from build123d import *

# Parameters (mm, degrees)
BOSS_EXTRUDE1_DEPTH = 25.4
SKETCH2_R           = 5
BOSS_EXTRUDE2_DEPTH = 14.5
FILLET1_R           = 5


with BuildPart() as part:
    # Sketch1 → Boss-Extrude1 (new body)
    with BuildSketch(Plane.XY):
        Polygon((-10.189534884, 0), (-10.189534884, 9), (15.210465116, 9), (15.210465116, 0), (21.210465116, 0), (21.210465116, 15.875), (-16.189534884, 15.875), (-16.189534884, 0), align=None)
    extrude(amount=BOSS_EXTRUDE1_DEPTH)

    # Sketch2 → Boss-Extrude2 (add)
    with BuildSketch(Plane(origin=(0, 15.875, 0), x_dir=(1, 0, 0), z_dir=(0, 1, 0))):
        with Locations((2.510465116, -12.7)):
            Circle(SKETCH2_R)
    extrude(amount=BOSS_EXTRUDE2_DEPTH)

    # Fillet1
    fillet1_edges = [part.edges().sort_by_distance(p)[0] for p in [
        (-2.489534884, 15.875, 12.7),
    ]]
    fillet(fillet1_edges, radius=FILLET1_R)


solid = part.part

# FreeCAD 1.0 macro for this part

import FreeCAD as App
import Part
import Sketcher

V = App.Vector


def edges_at(feature, points):
    """Names of the edges that pass closest to the given points."""
    edges = feature.Shape.Edges
    near = lambda p: min(range(len(edges)), key=lambda i: edges[i].distToShape(Part.Vertex(*p))[0])
    return sorted({f"Edge{near(p) + 1}" for p in points})

doc = App.newDocument("Part")
body = doc.addObject("PartDesign::Body", "Body")

# Sketch on XY plane
sketch1 = body.newObject("Sketcher::SketchObject", "Sketch")
sketch1.AttachmentSupport = (doc.getObject("XY_Plane"), [""])
sketch1.MapMode = "FlatFace"
sketch1.addGeometry([
    Part.LineSegment(V(-10, 0, 0), V(-10, 9, 0)),  # 0
    Part.LineSegment(V(-10, 9, 0), V(15, 9, 0)),  # 1
    Part.LineSegment(V(15, 9, 0), V(15, 0, 0)),  # 2
    Part.LineSegment(V(15, 0, 0), V(21, 0, 0)),  # 3
    Part.LineSegment(V(21, 0, 0), V(21, 16, 0)),  # 4
    Part.LineSegment(V(21, 16, 0), V(-16, 16, 0)),  # 5
    Part.LineSegment(V(-16, 16, 0), V(-16, 0, 0)),  # 6
    Part.LineSegment(V(-16, 0, 0), V(-10, 0, 0)),  # 7
], False)
sketch1.addConstraint([
    Sketcher.Constraint("Coincident", 0, 2, 1, 1),
    Sketcher.Constraint("Coincident", 1, 2, 2, 1),
    Sketcher.Constraint("Coincident", 2, 2, 3, 1),
    Sketcher.Constraint("Coincident", 3, 2, 4, 1),
    Sketcher.Constraint("Coincident", 4, 2, 5, 1),
    Sketcher.Constraint("Coincident", 5, 2, 6, 1),
    Sketcher.Constraint("Coincident", 6, 2, 7, 1),
    Sketcher.Constraint("Coincident", 7, 2, 0, 1),
    Sketcher.Constraint("Vertical", 0),
    Sketcher.Constraint("Horizontal", 1),
    Sketcher.Constraint("Vertical", 2),
    Sketcher.Constraint("Horizontal", 3),
    Sketcher.Constraint("Vertical", 4),
    Sketcher.Constraint("Horizontal", 5),
    Sketcher.Constraint("Vertical", 6),
    Sketcher.Constraint("Horizontal", 7),
    Sketcher.Constraint("PointOnObject", 2, 2, -1),
    Sketcher.Constraint("PointOnObject", 6, 2, -1),
    Sketcher.Constraint("Equal", 3, 7),
    Sketcher.Constraint("DistanceX", 3, 1, 3, 2, 6.0),
    Sketcher.Constraint("DistanceY", 0, 1, 0, 2, 9.0),
    Sketcher.Constraint("DistanceX", 1, 1, 1, 2, 25.4),
    Sketcher.Constraint("DistanceY", 4, 1, 4, 2, 15.875),
    Sketcher.Constraint("DistanceX", 0, 2, -1, 1, 10.189535),
])
pad1 = body.newObject("PartDesign::Pad", "Pad")
pad1.Profile = sketch1
pad1.Length = 25.4

# Sketch on XZ plane
sketch2 = body.newObject("Sketcher::SketchObject", "Sketch001")
sketch2.AttachmentSupport = (doc.getObject("XZ_Plane"), [""])
sketch2.MapMode = "FlatFace"
sketch2.AttachmentOffset = App.Placement(V(0, 0, -15.875), App.Rotation())
sketch2.addGeometry(Part.Circle(V(3, 13, 0), V(0, 0, 1), 5), False)
sketch2.addConstraint([
    Sketcher.Constraint("Diameter", 0, 10.0),
    Sketcher.Constraint("DistanceY", -1, 1, 0, 3, 12.7),
    Sketcher.Constraint("DistanceX", -1, 1, 0, 3, 2.510465),
])
pad2 = body.newObject("PartDesign::Pad", "Pad001")
pad2.Profile = sketch2
pad2.Length = 14.5
pad2.Reversed = True
doc.recompute()

fillet = body.newObject("PartDesign::Fillet", "Fillet")
fillet.Base = (pad2, edges_at(pad2, [(-2.49, 15.875, 12.7)]))
fillet.Radius = 5

doc.recompute()
